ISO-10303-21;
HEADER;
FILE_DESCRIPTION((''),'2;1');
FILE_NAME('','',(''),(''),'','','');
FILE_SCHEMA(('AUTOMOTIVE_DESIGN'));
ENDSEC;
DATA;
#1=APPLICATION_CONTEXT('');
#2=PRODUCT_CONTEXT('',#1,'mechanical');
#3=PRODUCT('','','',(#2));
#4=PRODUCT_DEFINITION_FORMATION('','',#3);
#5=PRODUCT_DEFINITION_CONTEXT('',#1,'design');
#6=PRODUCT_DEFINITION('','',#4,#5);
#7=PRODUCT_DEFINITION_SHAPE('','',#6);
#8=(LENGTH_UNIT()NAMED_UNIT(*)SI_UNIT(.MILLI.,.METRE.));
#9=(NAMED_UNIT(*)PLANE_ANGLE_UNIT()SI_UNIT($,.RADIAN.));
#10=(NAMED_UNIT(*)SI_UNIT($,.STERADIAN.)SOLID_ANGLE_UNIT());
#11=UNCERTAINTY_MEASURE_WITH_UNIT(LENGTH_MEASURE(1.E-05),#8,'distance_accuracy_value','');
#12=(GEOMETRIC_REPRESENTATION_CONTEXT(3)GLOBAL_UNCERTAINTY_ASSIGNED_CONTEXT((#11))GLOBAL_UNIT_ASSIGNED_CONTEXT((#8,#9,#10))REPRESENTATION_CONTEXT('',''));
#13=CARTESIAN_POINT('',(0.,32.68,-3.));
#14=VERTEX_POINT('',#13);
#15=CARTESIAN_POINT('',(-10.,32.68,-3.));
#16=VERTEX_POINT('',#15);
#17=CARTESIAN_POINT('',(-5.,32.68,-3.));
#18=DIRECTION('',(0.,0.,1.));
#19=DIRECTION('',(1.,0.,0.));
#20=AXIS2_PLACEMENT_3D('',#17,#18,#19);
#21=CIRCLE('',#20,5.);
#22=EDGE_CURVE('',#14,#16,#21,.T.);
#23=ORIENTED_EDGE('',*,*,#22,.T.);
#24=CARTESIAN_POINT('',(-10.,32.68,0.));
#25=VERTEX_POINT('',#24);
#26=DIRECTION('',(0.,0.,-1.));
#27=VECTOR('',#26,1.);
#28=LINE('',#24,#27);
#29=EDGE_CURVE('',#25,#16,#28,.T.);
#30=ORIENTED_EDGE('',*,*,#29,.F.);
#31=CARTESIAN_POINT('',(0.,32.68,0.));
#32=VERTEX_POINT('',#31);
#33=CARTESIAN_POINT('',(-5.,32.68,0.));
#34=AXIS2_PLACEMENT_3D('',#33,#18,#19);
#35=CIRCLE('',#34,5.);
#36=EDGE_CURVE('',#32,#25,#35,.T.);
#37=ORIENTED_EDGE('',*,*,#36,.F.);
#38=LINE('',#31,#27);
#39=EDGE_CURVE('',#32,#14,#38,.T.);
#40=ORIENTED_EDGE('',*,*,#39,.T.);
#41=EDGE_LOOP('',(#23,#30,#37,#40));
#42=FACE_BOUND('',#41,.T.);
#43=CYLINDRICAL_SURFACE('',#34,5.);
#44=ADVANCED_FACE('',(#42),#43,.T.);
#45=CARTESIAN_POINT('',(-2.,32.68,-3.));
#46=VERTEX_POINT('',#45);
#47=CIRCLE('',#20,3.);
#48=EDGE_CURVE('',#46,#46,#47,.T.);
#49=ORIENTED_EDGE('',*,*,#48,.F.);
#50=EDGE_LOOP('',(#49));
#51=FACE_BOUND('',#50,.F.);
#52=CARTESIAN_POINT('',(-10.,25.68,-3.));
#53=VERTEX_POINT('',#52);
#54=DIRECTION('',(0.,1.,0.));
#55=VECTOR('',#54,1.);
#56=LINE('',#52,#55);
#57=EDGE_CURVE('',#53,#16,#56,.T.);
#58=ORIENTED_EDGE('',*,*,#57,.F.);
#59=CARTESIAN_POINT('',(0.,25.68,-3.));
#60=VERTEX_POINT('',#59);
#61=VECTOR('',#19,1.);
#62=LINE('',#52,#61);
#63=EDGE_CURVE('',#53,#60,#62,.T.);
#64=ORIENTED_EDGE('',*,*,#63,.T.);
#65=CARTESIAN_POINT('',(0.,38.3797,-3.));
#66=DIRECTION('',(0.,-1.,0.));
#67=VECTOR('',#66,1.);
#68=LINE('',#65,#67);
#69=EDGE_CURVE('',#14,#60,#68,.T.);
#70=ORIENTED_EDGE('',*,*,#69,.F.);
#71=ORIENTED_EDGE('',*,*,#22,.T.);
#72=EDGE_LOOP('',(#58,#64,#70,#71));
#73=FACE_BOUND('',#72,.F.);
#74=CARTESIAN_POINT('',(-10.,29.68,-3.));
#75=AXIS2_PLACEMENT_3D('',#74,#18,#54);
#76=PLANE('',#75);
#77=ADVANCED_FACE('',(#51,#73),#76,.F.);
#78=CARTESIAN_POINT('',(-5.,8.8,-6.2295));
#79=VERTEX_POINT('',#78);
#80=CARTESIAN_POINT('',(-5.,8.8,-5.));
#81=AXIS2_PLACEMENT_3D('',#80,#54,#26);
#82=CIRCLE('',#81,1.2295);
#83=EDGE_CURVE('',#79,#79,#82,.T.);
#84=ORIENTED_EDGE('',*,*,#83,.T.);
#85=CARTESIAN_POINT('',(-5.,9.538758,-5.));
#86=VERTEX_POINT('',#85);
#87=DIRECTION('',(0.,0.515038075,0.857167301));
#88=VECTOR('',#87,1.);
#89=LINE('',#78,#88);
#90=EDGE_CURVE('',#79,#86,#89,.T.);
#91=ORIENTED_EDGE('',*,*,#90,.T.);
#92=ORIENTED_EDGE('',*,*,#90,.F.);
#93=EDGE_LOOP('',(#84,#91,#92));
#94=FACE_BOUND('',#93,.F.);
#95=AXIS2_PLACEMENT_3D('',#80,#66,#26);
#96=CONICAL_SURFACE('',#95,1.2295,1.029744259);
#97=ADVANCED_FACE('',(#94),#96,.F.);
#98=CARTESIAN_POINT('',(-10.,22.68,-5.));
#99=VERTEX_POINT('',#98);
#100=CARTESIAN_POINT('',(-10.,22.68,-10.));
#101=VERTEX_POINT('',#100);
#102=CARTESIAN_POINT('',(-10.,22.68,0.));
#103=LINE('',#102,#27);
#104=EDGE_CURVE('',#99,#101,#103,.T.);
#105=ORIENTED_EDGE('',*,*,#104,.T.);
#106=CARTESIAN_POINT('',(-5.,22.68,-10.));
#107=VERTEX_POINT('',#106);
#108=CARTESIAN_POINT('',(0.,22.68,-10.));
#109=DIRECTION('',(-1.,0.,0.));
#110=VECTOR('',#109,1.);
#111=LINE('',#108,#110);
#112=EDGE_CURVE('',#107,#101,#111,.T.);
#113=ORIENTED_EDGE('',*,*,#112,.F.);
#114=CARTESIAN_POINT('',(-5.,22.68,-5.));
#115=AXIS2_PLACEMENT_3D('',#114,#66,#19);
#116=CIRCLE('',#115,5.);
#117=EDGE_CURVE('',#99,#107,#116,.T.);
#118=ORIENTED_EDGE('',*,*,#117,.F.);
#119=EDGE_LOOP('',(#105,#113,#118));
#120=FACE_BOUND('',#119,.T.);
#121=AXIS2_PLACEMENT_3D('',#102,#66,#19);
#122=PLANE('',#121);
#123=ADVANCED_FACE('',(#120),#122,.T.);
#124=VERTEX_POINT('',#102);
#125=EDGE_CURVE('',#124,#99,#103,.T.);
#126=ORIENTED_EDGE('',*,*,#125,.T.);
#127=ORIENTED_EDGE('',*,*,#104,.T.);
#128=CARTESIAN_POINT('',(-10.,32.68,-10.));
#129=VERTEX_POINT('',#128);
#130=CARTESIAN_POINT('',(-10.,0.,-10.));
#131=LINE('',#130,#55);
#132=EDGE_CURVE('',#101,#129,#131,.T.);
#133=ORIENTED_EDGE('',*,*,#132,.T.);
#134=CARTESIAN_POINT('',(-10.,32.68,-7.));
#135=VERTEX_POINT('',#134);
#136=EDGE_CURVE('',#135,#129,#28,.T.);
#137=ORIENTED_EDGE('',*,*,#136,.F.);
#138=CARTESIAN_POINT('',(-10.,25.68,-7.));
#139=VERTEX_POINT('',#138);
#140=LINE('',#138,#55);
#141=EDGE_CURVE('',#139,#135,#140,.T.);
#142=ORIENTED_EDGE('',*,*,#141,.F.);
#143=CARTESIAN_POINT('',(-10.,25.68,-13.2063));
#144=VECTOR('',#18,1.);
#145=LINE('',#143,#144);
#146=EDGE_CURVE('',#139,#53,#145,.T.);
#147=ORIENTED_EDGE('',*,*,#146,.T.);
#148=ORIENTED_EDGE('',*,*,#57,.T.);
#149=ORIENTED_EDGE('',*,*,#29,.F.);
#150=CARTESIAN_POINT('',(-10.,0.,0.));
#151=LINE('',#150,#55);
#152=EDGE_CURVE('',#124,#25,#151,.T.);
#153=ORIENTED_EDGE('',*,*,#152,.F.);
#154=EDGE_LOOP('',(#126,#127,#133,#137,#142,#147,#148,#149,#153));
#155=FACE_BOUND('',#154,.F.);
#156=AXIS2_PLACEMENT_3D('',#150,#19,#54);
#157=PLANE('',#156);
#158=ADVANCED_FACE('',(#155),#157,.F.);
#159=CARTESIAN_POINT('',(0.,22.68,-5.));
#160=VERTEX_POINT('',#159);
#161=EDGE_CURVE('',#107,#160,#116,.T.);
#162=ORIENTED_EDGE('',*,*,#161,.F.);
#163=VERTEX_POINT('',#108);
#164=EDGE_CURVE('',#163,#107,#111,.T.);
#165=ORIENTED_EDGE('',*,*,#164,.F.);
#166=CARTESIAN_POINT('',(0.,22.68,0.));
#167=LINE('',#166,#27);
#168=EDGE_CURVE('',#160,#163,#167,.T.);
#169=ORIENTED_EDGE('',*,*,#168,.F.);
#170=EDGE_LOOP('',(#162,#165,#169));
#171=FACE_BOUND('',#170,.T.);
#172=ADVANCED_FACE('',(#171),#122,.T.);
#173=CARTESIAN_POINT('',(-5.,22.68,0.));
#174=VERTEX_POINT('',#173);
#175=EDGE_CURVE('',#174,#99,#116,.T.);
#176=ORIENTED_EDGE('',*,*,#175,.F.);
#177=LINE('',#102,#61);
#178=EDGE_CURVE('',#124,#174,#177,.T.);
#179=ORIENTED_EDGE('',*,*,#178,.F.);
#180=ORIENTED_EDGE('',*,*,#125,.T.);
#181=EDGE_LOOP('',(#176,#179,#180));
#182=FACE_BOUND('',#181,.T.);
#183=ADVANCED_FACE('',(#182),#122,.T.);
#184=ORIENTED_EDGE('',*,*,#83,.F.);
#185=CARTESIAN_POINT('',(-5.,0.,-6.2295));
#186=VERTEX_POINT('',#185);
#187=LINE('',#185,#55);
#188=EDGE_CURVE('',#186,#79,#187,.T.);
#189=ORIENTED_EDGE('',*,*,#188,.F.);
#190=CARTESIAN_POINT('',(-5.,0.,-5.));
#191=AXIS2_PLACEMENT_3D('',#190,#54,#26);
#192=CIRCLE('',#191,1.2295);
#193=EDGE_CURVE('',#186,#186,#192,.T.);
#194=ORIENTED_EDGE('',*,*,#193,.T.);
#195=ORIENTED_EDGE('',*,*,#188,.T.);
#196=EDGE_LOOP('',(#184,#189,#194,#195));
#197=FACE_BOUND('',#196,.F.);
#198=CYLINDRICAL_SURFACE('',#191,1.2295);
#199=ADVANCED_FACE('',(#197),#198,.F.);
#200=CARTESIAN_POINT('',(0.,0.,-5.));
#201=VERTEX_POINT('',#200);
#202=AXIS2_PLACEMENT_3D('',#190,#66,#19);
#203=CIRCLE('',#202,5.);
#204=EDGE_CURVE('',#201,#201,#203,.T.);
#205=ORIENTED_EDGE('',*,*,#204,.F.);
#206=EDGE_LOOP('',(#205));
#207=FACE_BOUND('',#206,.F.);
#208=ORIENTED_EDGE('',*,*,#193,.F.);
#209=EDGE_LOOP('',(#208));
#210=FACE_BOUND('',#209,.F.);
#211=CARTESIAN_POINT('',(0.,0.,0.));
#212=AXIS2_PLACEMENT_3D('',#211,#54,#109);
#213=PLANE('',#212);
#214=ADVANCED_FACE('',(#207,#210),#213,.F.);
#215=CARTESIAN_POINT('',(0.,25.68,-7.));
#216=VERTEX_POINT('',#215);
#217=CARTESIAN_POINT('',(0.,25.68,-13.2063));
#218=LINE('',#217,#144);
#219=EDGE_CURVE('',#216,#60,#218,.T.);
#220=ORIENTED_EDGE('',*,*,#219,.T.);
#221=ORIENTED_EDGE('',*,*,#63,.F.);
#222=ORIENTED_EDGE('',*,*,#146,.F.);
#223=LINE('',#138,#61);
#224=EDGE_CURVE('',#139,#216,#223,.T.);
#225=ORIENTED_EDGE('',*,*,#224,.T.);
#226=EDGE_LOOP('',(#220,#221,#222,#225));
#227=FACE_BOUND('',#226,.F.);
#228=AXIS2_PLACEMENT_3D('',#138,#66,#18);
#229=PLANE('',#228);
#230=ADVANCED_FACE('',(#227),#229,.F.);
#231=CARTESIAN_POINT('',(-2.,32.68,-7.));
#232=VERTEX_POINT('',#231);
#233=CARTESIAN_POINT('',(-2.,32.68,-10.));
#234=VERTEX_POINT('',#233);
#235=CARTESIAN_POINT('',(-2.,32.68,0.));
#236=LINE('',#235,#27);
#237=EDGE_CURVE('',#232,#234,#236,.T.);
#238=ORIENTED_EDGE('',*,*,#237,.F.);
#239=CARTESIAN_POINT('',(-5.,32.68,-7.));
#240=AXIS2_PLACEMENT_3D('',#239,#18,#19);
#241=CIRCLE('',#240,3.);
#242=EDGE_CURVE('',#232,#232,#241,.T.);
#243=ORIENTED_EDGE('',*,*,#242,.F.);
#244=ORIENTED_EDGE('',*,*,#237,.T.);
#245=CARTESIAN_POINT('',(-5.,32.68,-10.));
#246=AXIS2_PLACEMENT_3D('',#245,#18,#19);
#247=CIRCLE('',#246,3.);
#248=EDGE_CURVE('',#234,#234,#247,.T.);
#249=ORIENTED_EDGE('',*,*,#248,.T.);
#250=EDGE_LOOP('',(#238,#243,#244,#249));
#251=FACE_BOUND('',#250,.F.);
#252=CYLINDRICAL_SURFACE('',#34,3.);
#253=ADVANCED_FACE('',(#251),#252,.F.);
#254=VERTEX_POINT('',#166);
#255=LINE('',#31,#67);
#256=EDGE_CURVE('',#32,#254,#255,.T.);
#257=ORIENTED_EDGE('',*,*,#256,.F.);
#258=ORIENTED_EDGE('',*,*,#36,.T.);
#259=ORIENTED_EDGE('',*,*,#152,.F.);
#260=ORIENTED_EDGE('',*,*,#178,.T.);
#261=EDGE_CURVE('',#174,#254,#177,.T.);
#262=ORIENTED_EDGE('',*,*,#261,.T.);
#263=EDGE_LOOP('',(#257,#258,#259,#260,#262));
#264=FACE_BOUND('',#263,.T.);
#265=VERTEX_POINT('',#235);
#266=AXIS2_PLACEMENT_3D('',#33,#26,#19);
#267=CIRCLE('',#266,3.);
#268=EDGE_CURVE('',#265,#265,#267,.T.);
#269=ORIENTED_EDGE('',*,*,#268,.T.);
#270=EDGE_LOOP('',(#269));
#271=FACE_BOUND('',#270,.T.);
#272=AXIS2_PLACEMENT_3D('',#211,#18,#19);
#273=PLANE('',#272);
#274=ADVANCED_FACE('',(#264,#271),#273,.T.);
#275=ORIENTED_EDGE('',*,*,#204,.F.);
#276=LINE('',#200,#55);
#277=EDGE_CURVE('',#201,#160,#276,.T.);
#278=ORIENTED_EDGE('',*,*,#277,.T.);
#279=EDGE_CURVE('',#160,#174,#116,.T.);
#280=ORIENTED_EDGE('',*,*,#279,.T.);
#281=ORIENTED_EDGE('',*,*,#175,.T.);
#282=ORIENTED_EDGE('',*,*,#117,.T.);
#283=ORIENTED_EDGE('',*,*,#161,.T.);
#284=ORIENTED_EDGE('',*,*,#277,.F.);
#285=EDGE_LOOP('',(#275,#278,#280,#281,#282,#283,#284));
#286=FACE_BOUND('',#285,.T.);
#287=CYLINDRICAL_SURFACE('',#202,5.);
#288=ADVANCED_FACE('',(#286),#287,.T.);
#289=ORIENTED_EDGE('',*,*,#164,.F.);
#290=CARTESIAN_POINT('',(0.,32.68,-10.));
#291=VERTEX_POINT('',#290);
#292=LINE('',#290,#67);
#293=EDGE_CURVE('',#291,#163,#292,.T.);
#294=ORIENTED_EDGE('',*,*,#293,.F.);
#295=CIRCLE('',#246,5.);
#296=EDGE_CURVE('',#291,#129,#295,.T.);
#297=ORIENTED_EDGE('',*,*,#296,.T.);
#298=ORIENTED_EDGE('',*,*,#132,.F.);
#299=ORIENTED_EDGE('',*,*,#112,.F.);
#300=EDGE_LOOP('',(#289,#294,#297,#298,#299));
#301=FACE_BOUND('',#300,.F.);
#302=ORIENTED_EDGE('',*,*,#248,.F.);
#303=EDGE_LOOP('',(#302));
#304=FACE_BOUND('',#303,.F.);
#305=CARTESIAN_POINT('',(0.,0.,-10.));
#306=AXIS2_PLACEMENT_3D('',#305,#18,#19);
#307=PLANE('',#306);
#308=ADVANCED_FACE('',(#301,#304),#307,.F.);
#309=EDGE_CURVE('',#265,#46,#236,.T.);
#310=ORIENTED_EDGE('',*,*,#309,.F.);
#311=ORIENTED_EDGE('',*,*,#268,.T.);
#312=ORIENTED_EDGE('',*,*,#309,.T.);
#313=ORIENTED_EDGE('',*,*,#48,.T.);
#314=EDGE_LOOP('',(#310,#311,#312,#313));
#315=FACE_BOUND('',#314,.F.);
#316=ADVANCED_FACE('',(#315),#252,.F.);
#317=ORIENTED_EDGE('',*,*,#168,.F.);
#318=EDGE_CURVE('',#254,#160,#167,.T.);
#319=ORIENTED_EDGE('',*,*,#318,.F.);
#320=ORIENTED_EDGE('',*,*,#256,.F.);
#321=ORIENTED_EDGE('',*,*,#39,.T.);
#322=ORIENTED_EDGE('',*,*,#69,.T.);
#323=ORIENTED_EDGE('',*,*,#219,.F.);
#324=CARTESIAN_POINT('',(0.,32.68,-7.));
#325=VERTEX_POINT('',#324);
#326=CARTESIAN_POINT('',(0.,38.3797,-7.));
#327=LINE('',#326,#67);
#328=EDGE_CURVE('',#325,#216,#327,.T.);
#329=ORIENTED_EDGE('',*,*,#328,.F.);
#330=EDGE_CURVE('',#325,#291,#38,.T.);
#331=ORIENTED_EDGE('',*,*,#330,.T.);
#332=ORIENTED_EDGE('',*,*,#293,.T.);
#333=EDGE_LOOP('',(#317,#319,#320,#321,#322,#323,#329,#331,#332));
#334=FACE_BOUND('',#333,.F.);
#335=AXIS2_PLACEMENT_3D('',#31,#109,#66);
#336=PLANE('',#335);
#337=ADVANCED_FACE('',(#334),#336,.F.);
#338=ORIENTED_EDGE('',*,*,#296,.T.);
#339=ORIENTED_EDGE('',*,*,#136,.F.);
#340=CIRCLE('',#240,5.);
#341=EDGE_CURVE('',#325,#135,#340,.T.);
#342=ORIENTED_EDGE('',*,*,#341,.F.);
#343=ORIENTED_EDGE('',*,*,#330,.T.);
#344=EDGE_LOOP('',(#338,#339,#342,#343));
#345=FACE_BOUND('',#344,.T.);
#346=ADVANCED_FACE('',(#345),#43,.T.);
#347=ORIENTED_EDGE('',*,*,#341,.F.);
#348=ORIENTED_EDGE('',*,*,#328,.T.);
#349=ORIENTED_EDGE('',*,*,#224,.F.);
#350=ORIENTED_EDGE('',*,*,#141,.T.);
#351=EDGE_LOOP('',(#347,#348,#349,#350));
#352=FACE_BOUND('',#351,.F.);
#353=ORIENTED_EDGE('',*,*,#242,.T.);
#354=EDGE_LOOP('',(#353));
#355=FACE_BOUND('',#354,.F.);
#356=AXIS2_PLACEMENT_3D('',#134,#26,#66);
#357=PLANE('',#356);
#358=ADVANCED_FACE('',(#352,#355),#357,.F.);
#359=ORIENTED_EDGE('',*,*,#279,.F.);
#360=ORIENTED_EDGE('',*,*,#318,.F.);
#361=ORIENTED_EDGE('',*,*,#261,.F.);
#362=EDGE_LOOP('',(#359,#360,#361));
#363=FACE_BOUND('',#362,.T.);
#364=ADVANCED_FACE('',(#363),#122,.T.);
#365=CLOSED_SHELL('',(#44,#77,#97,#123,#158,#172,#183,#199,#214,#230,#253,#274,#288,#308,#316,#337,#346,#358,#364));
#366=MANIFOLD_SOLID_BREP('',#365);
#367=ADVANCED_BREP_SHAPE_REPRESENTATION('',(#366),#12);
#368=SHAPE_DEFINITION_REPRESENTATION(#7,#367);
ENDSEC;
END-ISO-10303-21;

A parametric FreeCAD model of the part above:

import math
import FreeCAD as App
import Part
import Sketcher

V = App.Vector
Q = App.Units.Quantity


def add_polygon(sketch, points):
    """Adds a closed chain of lines whose ends are joined by coincident constraints."""
    first, n = sketch.GeometryCount, len(points)
    for a, b in zip(points, points[1:] + points[:1]):
        sketch.addGeometry(Part.LineSegment(App.Vector(*a, 0), App.Vector(*b, 0)), False)
    for i in range(n):
        sketch.addConstraint(Sketcher.Constraint("Coincident", first + i, 2, first + (i + 1) % n, 1))

doc = App.newDocument("Part")
body = doc.addObject("PartDesign::Body", "Body")

# Sketch on XY plane
sketch1 = body.newObject("Sketcher::SketchObject", "Sketch")
sketch1.AttachmentSupport = (doc.getObject("XY_Plane"), [""])
sketch1.MapMode = "FlatFace"
sketch1.addGeometry(Part.LineSegment(V(-10, 0, 0), V(0, 0, 0)), False)
sketch1.addGeometry(Part.LineSegment(V(0, 0, 0), V(0, 32.68, 0)), False)
sketch1.addGeometry(Part.ArcOfCircle(Part.Circle(V(-5, 32.68, 0), V(0, 0, 1), 5), math.radians(0), math.radians(180)), False)
sketch1.addGeometry(Part.LineSegment(V(-10, 32.68, 0), V(-10, 0, 0)), False)
sketch1.addGeometry(Part.Circle(V(-5, 32.68, 0), V(0, 0, 1), 3), False)
sketch1.addConstraint(Sketcher.Constraint("Coincident", 0, 2, 1, 1))
sketch1.addConstraint(Sketcher.Constraint("Tangent", 1, 2, 2, 1))
sketch1.addConstraint(Sketcher.Constraint("Tangent", 2, 2, 3, 1))
sketch1.addConstraint(Sketcher.Constraint("Coincident", 3, 2, 0, 1))
sketch1.addConstraint(Sketcher.Constraint("Horizontal", 0))
sketch1.addConstraint(Sketcher.Constraint("Vertical", 1))
sketch1.addConstraint(Sketcher.Constraint("Vertical", 3))
sketch1.addConstraint(Sketcher.Constraint("Coincident", 0, 2, -1, 1))
sketch1.addConstraint(Sketcher.Constraint("Coincident", 4, 3, 2, 3))
sketch1.addConstraint(Sketcher.Constraint("Diameter", 4, Q("6 mm")))
sketch1.addConstraint(Sketcher.Constraint("Radius", 2, Q("5 mm")))
sketch1.addConstraint(Sketcher.Constraint("DistanceY", 1, 1, 1, 2, Q("32.68 mm")))
pad1 = body.newObject("PartDesign::Pad", "Pad")
pad1.Profile = sketch1
pad1.Length = 10
pad1.Reversed = True

# Sketch on YZ plane
sketch2 = body.newObject("Sketcher::SketchObject", "Sketch001")
sketch2.AttachmentSupport = (doc.getObject("YZ_Plane"), [""])
sketch2.MapMode = "FlatFace"
sketch2.AttachmentOffset = App.Placement(V(0, 0, -10), App.Rotation())
add_polygon(sketch2, [(25.68, -7), (25.68, -3), (38.3797, -3), (38.3797, -7)])  # lines 0-3
sketch2.addConstraint(Sketcher.Constraint("Vertical", 0))
sketch2.addConstraint(Sketcher.Constraint("Horizontal", 1))
sketch2.addConstraint(Sketcher.Constraint("Vertical", 2))
sketch2.addConstraint(Sketcher.Constraint("Horizontal", 3))
sketch2.addConstraint(Sketcher.Constraint("DistanceY", 0, 1, 0, 2, Q("4 mm")))
sketch2.addConstraint(Sketcher.Constraint("DistanceY", 2, 2, -1, 1, Q("7 mm")))
sketch2.addConstraint(Sketcher.Constraint("DistanceX", -1, 1, 0, 2, Q("25.68 mm")))
sketch2.addConstraint(Sketcher.Constraint("DistanceX", 1, 1, 1, 2, Q("12.6997 mm")))
pocket1 = body.newObject("PartDesign::Pocket", "Pocket")
pocket1.Profile = sketch2
pocket1.Length = 10
pocket1.Reversed = True

# Sketch on XZ plane
sketch3 = body.newObject("Sketcher::SketchObject", "Sketch002")
sketch3.AttachmentSupport = (doc.getObject("XZ_Plane"), [""])
sketch3.MapMode = "FlatFace"
sketch3.addGeometry(Part.Circle(V(-5, -5, 0), V(0, 0, 1), 1.2295), False)
sketch3.addConstraint(Sketcher.Constraint("Diameter", 0, Q("2.459 mm")))
sketch3.addConstraint(Sketcher.Constraint("DistanceX", 0, 3, -1, 1, Q("5 mm")))
sketch3.addConstraint(Sketcher.Constraint("DistanceY", 0, 3, -1, 1, Q("5 mm")))
doc.recompute()
hole = body.newObject("PartDesign::Hole", "Hole")
hole.Profile = sketch3
hole.ThreadType = "None"
hole.Diameter = 2.459
hole.DepthType = "Dimension"
hole.Depth = 8.8
hole.DrillPoint = "Angled"
hole.DrillPointAngle = 118

# Sketch on XZ plane
sketch4 = body.newObject("Sketcher::SketchObject", "Sketch003")
sketch4.AttachmentSupport = (doc.getObject("XZ_Plane"), [""])
sketch4.MapMode = "FlatFace"
sketch4.addGeometry(Part.LineSegment(V(0, -5, 0), V(0, 0, 0)), False)
sketch4.addGeometry(Part.LineSegment(V(0, 0, 0), V(-5, 0, 0)), False)
sketch4.addGeometry(Part.ArcOfCircle(Part.Circle(V(-5, -5, 0), V(0, 0, 1), 5), math.radians(0), math.radians(90)), False)
sketch4.addGeometry(Part.LineSegment(V(0, -10, 0), V(0, -5, 0)), False)
sketch4.addGeometry(Part.ArcOfCircle(Part.Circle(V(-5, -5, 0), V(0, 0, 1), 5), math.radians(-90), math.radians(0)), False)
sketch4.addGeometry(Part.LineSegment(V(-5, -10, 0), V(0, -10, 0)), False)
sketch4.addGeometry(Part.ArcOfCircle(Part.Circle(V(-5, -5, 0), V(0, 0, 1), 5), math.radians(90), math.radians(180)), False)
sketch4.addGeometry(Part.LineSegment(V(-5, 0, 0), V(-10, 0, 0)), False)
sketch4.addGeometry(Part.LineSegment(V(-10, 0, 0), V(-10, -5, 0)), False)
sketch4.addGeometry(Part.LineSegment(V(-10, -10, 0), V(-5, -10, 0)), False)
sketch4.addGeometry(Part.ArcOfCircle(Part.Circle(V(-5, -5, 0), V(0, 0, 1), 5), math.radians(180), math.radians(270)), False)
sketch4.addGeometry(Part.LineSegment(V(-10, -5, 0), V(-10, -10, 0)), False)
sketch4.addConstraint(Sketcher.Constraint("Coincident", 0, 2, 1, 1))
sketch4.addConstraint(Sketcher.Constraint("Tangent", 1, 2, 2, 2))
sketch4.addConstraint(Sketcher.Constraint("Tangent", 2, 1, 0, 1))
sketch4.addConstraint(Sketcher.Constraint("Tangent", 3, 2, 4, 2))
sketch4.addConstraint(Sketcher.Constraint("Tangent", 4, 1, 5, 1))
sketch4.addConstraint(Sketcher.Constraint("Coincident", 5, 2, 3, 1))
sketch4.addConstraint(Sketcher.Constraint("Tangent", 6, 1, 7, 1))
sketch4.addConstraint(Sketcher.Constraint("Coincident", 7, 2, 8, 1))
sketch4.addConstraint(Sketcher.Constraint("Tangent", 8, 2, 6, 2))
sketch4.addConstraint(Sketcher.Constraint("Tangent", 9, 2, 10, 2))
sketch4.addConstraint(Sketcher.Constraint("Tangent", 10, 1, 11, 1))
sketch4.addConstraint(Sketcher.Constraint("Coincident", 11, 2, 9, 1))
sketch4.addConstraint(Sketcher.Constraint("Vertical", 0))
sketch4.addConstraint(Sketcher.Constraint("Horizontal", 1))
sketch4.addConstraint(Sketcher.Constraint("Vertical", 3))
sketch4.addConstraint(Sketcher.Constraint("Horizontal", 5))
sketch4.addConstraint(Sketcher.Constraint("Horizontal", 7))
sketch4.addConstraint(Sketcher.Constraint("Vertical", 8))
sketch4.addConstraint(Sketcher.Constraint("Horizontal", 9))
sketch4.addConstraint(Sketcher.Constraint("Vertical", 11))
sketch4.addConstraint(Sketcher.Constraint("Coincident", 0, 2, -1, 1))
sketch4.addConstraint(Sketcher.Constraint("Coincident", 4, 3, 2, 3))
sketch4.addConstraint(Sketcher.Constraint("Coincident", 6, 3, 2, 3))
sketch4.addConstraint(Sketcher.Constraint("Coincident", 10, 3, 2, 3))
sketch4.addConstraint(Sketcher.Constraint("Equal", 2, 4))
sketch4.addConstraint(Sketcher.Constraint("Equal", 4, 6))
sketch4.addConstraint(Sketcher.Constraint("Equal", 6, 10))
sketch4.addConstraint(Sketcher.Constraint("Radius", 2, Q("5 mm")))
pocket2 = body.newObject("PartDesign::Pocket", "Pocket001")
pocket2.Profile = sketch4
pocket2.Length = 22.68

doc.recompute()
